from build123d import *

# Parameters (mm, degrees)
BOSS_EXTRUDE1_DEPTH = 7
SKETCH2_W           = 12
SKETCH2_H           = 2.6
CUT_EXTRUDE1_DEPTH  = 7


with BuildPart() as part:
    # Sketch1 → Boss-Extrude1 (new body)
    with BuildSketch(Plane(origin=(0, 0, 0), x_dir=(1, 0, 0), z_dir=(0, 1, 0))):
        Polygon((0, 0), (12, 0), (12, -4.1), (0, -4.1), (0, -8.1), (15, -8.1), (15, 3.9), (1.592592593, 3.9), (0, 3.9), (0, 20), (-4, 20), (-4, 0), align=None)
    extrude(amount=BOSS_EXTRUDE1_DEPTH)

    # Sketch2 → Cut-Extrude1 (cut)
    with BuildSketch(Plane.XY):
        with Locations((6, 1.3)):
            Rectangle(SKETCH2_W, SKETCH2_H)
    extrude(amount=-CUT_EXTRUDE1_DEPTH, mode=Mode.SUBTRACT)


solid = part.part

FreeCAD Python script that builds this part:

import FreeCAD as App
import Part
import Sketcher
from FreeCAD import Vector
Q = App.Units.Quantity

doc = App.newDocument("Part")
body = doc.addObject("PartDesign::Body", "Body")

sketch1 = body.newObject("Sketcher::SketchObject", "Sketch")
sketch1.AttachmentSupport = (doc.getObject("XZ_Plane"), [""])
sketch1.MapMode = "FlatFace"
sketch1.addGeometry(Part.LineSegment(Vector(12, 0, 0), Vector(12, 4.1, 0)), False)
sketch1.addGeometry(Part.LineSegment(Vector(12, 4.1, 0), Vector(0, 4.1, 0)), False)
sketch1.addGeometry(Part.LineSegment(Vector(0, 4.1, 0), Vector(0, 8.1, 0)), False)
sketch1.addGeometry(Part.LineSegment(Vector(0, 8.1, 0), Vector(15, 8.1, 0)), False)
sketch1.addGeometry(Part.LineSegment(Vector(15, 8.1, 0), Vector(15, -3.9, 0)), False)
sketch1.addGeometry(Part.LineSegment(Vector(15, -3.9, 0), Vector(0, -3.9, 0)), False)
sketch1.addGeometry(Part.LineSegment(Vector(0, -3.9, 0), Vector(0, -20, 0)), False)
sketch1.addGeometry(Part.LineSegment(Vector(0, -20, 0), Vector(-4, -20, 0)), False)
sketch1.addGeometry(Part.LineSegment(Vector(-4, -20, 0), Vector(-4, 0, 0)), False)
sketch1.addGeometry(Part.LineSegment(Vector(-4, 0, 0), Vector(12, 0, 0)), False)
sketch1.addConstraint(Sketcher.Constraint("Coincident", 0, 2, 1, 1))
sketch1.addConstraint(Sketcher.Constraint("Coincident", 1, 2, 2, 1))
sketch1.addConstraint(Sketcher.Constraint("Coincident", 2, 2, 3, 1))
sketch1.addConstraint(Sketcher.Constraint("Coincident", 3, 2, 4, 1))
sketch1.addConstraint(Sketcher.Constraint("Coincident", 4, 2, 5, 1))
sketch1.addConstraint(Sketcher.Constraint("Coincident", 5, 2, 6, 1))
sketch1.addConstraint(Sketcher.Constraint("Coincident", 6, 2, 7, 1))
sketch1.addConstraint(Sketcher.Constraint("Coincident", 7, 2, 8, 1))
sketch1.addConstraint(Sketcher.Constraint("Coincident", 8, 2, 9, 1))
sketch1.addConstraint(Sketcher.Constraint("Coincident", 9, 2, 0, 1))
sketch1.addConstraint(Sketcher.Constraint("Vertical", 0))
sketch1.addConstraint(Sketcher.Constraint("Horizontal", 1))
sketch1.addConstraint(Sketcher.Constraint("Vertical", 2))
sketch1.addConstraint(Sketcher.Constraint("Horizontal", 3))
sketch1.addConstraint(Sketcher.Constraint("Vertical", 4))
sketch1.addConstraint(Sketcher.Constraint("Horizontal", 5))
sketch1.addConstraint(Sketcher.Constraint("Vertical", 6))
sketch1.addConstraint(Sketcher.Constraint("Horizontal", 7))
sketch1.addConstraint(Sketcher.Constraint("Vertical", 8))
sketch1.addConstraint(Sketcher.Constraint("Horizontal", 9))
sketch1.addConstraint(Sketcher.Constraint("PointOnObject", 1, 2, -2))
sketch1.addConstraint(Sketcher.Constraint("PointOnObject", 5, 2, -2))
sketch1.addConstraint(Sketcher.Constraint("PointOnObject", 8, 2, -1))
sketch1.addConstraint(Sketcher.Constraint("Equal", 7, 2))
sketch1.addConstraint(Sketcher.Constraint("Equal", 1, 4))
sketch1.addConstraint(Sketcher.Constraint("DistanceX", 1, 2, 1, 1, Q("12 mm")))
sketch1.addConstraint(Sketcher.Constraint("DistanceX", 3, 1, 3, 2, Q("15 mm")))
sketch1.addConstraint(Sketcher.Constraint("DistanceX", 7, 2, 7, 1, Q("4 mm")))
sketch1.addConstraint(Sketcher.Constraint("DistanceY", 8, 1, 8, 2, Q("20 mm")))
sketch1.addConstraint(Sketcher.Constraint("DistanceY", 0, 1, 0, 2, Q("4.1 mm")))
pad1 = body.newObject("PartDesign::Pad", "Pad")
pad1.Profile = sketch1
pad1.Length = 7
pad1.Reversed = True

sketch2 = body.newObject("Sketcher::SketchObject", "Sketch001")
sketch2.AttachmentSupport = (doc.getObject("XY_Plane"), [""])
sketch2.MapMode = "FlatFace"
sketch2.addGeometry(Part.LineSegment(Vector(0, 2.6, 0), Vector(0, 0, 0)), False)
sketch2.addGeometry(Part.LineSegment(Vector(0, 0, 0), Vector(12, 0, 0)), False)
sketch2.addGeometry(Part.LineSegment(Vector(12, 0, 0), Vector(12, 2.6, 0)), False)
sketch2.addGeometry(Part.LineSegment(Vector(12, 2.6, 0), Vector(0, 2.6, 0)), False)
sketch2.addConstraint(Sketcher.Constraint("Coincident", 0, 2, 1, 1))
sketch2.addConstraint(Sketcher.Constraint("Coincident", 1, 2, 2, 1))
sketch2.addConstraint(Sketcher.Constraint("Coincident", 2, 2, 3, 1))
sketch2.addConstraint(Sketcher.Constraint("Coincident", 3, 2, 0, 1))
sketch2.addConstraint(Sketcher.Constraint("Vertical", 0))
sketch2.addConstraint(Sketcher.Constraint("Horizontal", 1))
sketch2.addConstraint(Sketcher.Constraint("Vertical", 2))
sketch2.addConstraint(Sketcher.Constraint("Horizontal", 3))
sketch2.addConstraint(Sketcher.Constraint("Coincident", 0, 2, -1, 1))
sketch2.addConstraint(Sketcher.Constraint("DistanceX", 1, 1, 1, 2, Q("12 mm")))
sketch2.addConstraint(Sketcher.Constraint("DistanceY", 0, 2, 0, 1, Q("2.6 mm")))
pocket1 = body.newObject("PartDesign::Pocket", "Pocket")
pocket1.Profile = sketch2
pocket1.Length = 7

doc.recompute()
